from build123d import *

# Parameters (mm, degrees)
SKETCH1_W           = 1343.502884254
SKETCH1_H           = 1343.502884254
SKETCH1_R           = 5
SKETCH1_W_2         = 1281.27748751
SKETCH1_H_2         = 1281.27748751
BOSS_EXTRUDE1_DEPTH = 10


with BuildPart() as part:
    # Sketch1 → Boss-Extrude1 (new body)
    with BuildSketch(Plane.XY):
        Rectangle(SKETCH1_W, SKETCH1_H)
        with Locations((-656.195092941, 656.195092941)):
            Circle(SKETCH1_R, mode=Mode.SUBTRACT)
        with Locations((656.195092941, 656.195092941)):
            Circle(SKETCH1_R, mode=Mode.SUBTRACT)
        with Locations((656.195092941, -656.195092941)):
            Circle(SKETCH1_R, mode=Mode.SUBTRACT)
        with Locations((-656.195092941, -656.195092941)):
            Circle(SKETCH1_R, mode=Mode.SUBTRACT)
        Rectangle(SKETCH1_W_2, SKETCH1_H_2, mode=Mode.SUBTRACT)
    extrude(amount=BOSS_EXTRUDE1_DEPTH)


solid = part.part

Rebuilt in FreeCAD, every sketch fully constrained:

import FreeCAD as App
import Part
import Sketcher

doc = App.newDocument("Part")
body = doc.addObject("PartDesign::Body", "Body")

# Sketch on XY plane
sketch1 = body.newObject("Sketcher::SketchObject", "Sketch")
sketch1.AttachmentSupport = (doc.getObject("XY_Plane"), [""])
sketch1.MapMode = "FlatFace"
sketch1.addGeometry([
    Part.LineSegment(App.Vector(-671.751442, 671.751442, 0), App.Vector(-671.751442, -671.751442, 0)),  # 0
    Part.LineSegment(App.Vector(-671.751442, -671.751442, 0), App.Vector(671.751442, -671.751442, 0)),  # 1
    Part.LineSegment(App.Vector(671.751442, -671.751442, 0), App.Vector(671.751442, 671.751442, 0)),  # 2
    Part.LineSegment(App.Vector(671.751442, 671.751442, 0), App.Vector(-671.751442, 671.751442, 0)),  # 3
    Part.Circle(App.Vector(-656.195093, -656.195093, 0), App.Vector(0, 0, 1), 5),  # 4
    Part.Circle(App.Vector(656.195093, -656.195093, 0), App.Vector(0, 0, 1), 5),  # 5
    Part.Circle(App.Vector(-656.195093, 656.195093, 0), App.Vector(0, 0, 1), 5),  # 6
    Part.LineSegment(App.Vector(640.638744, -640.638744, 0), App.Vector(-640.638744, -640.638744, 0)),  # 7
    Part.LineSegment(App.Vector(-640.638744, -640.638744, 0), App.Vector(-640.638744, 640.638744, 0)),  # 8
    Part.LineSegment(App.Vector(-640.638744, 640.638744, 0), App.Vector(640.638744, 640.638744, 0)),  # 9
    Part.LineSegment(App.Vector(640.638744, 640.638744, 0), App.Vector(640.638744, -640.638744, 0)),  # 10
    Part.Circle(App.Vector(656.195093, 656.195093, 0), App.Vector(0, 0, 1), 5),  # 11
], False)
sketch1.addConstraint([
    Sketcher.Constraint("Coincident", 0, 2, 1, 1),
    Sketcher.Constraint("Coincident", 1, 2, 2, 1),
    Sketcher.Constraint("Coincident", 2, 2, 3, 1),
    Sketcher.Constraint("Coincident", 3, 2, 0, 1),
    Sketcher.Constraint("Coincident", 7, 2, 8, 1),
    Sketcher.Constraint("Coincident", 8, 2, 9, 1),
    Sketcher.Constraint("Coincident", 9, 2, 10, 1),
    Sketcher.Constraint("Coincident", 10, 2, 7, 1),
    Sketcher.Constraint("Vertical", 0),
    Sketcher.Constraint("Horizontal", 1),
    Sketcher.Constraint("Vertical", 2),
    Sketcher.Constraint("Horizontal", 3),
    Sketcher.Constraint("Horizontal", 7),
    Sketcher.Constraint("Vertical", 8),
    Sketcher.Constraint("Horizontal", 9),
    Sketcher.Constraint("Vertical", 10),
    Sketcher.Constraint("Equal", 4, 5),
    Sketcher.Constraint("Equal", 5, 6),
    Sketcher.Constraint("Equal", 6, 11),
    Sketcher.Constraint("Symmetric", 5, 3, 6, 3, -1, 1),
    Sketcher.Constraint("Symmetric", 4, 3, 11, 3, -1, 1),
    Sketcher.Constraint("Symmetric", 0, 2, 2, 2, -1, 1),
    Sketcher.Constraint("Symmetric", 7, 2, 9, 2, -1, 1),
    Sketcher.Constraint("Symmetric", 4, 3, 5, 3, -2),
    Sketcher.Constraint("Equal", 3, 0),
    Sketcher.Constraint("Equal", 9, 8),
    Sketcher.Constraint("Diameter", 4, 10.0),
    Sketcher.Constraint("DistanceX", 0, 2, 7, 2, 31.112698),
    Sketcher.Constraint("DistanceX", 1, 1, 1, 2, 1343.502884),
    Sketcher.Constraint("DistanceX", 0, 2, 4, 3, 15.556349),
    Sketcher.Constraint("DistanceY", 0, 2, 4, 3, 15.556349),
])
pad1 = body.newObject("PartDesign::Pad", "Pad")
pad1.Profile = sketch1
pad1.Length = 10

doc.recompute()
